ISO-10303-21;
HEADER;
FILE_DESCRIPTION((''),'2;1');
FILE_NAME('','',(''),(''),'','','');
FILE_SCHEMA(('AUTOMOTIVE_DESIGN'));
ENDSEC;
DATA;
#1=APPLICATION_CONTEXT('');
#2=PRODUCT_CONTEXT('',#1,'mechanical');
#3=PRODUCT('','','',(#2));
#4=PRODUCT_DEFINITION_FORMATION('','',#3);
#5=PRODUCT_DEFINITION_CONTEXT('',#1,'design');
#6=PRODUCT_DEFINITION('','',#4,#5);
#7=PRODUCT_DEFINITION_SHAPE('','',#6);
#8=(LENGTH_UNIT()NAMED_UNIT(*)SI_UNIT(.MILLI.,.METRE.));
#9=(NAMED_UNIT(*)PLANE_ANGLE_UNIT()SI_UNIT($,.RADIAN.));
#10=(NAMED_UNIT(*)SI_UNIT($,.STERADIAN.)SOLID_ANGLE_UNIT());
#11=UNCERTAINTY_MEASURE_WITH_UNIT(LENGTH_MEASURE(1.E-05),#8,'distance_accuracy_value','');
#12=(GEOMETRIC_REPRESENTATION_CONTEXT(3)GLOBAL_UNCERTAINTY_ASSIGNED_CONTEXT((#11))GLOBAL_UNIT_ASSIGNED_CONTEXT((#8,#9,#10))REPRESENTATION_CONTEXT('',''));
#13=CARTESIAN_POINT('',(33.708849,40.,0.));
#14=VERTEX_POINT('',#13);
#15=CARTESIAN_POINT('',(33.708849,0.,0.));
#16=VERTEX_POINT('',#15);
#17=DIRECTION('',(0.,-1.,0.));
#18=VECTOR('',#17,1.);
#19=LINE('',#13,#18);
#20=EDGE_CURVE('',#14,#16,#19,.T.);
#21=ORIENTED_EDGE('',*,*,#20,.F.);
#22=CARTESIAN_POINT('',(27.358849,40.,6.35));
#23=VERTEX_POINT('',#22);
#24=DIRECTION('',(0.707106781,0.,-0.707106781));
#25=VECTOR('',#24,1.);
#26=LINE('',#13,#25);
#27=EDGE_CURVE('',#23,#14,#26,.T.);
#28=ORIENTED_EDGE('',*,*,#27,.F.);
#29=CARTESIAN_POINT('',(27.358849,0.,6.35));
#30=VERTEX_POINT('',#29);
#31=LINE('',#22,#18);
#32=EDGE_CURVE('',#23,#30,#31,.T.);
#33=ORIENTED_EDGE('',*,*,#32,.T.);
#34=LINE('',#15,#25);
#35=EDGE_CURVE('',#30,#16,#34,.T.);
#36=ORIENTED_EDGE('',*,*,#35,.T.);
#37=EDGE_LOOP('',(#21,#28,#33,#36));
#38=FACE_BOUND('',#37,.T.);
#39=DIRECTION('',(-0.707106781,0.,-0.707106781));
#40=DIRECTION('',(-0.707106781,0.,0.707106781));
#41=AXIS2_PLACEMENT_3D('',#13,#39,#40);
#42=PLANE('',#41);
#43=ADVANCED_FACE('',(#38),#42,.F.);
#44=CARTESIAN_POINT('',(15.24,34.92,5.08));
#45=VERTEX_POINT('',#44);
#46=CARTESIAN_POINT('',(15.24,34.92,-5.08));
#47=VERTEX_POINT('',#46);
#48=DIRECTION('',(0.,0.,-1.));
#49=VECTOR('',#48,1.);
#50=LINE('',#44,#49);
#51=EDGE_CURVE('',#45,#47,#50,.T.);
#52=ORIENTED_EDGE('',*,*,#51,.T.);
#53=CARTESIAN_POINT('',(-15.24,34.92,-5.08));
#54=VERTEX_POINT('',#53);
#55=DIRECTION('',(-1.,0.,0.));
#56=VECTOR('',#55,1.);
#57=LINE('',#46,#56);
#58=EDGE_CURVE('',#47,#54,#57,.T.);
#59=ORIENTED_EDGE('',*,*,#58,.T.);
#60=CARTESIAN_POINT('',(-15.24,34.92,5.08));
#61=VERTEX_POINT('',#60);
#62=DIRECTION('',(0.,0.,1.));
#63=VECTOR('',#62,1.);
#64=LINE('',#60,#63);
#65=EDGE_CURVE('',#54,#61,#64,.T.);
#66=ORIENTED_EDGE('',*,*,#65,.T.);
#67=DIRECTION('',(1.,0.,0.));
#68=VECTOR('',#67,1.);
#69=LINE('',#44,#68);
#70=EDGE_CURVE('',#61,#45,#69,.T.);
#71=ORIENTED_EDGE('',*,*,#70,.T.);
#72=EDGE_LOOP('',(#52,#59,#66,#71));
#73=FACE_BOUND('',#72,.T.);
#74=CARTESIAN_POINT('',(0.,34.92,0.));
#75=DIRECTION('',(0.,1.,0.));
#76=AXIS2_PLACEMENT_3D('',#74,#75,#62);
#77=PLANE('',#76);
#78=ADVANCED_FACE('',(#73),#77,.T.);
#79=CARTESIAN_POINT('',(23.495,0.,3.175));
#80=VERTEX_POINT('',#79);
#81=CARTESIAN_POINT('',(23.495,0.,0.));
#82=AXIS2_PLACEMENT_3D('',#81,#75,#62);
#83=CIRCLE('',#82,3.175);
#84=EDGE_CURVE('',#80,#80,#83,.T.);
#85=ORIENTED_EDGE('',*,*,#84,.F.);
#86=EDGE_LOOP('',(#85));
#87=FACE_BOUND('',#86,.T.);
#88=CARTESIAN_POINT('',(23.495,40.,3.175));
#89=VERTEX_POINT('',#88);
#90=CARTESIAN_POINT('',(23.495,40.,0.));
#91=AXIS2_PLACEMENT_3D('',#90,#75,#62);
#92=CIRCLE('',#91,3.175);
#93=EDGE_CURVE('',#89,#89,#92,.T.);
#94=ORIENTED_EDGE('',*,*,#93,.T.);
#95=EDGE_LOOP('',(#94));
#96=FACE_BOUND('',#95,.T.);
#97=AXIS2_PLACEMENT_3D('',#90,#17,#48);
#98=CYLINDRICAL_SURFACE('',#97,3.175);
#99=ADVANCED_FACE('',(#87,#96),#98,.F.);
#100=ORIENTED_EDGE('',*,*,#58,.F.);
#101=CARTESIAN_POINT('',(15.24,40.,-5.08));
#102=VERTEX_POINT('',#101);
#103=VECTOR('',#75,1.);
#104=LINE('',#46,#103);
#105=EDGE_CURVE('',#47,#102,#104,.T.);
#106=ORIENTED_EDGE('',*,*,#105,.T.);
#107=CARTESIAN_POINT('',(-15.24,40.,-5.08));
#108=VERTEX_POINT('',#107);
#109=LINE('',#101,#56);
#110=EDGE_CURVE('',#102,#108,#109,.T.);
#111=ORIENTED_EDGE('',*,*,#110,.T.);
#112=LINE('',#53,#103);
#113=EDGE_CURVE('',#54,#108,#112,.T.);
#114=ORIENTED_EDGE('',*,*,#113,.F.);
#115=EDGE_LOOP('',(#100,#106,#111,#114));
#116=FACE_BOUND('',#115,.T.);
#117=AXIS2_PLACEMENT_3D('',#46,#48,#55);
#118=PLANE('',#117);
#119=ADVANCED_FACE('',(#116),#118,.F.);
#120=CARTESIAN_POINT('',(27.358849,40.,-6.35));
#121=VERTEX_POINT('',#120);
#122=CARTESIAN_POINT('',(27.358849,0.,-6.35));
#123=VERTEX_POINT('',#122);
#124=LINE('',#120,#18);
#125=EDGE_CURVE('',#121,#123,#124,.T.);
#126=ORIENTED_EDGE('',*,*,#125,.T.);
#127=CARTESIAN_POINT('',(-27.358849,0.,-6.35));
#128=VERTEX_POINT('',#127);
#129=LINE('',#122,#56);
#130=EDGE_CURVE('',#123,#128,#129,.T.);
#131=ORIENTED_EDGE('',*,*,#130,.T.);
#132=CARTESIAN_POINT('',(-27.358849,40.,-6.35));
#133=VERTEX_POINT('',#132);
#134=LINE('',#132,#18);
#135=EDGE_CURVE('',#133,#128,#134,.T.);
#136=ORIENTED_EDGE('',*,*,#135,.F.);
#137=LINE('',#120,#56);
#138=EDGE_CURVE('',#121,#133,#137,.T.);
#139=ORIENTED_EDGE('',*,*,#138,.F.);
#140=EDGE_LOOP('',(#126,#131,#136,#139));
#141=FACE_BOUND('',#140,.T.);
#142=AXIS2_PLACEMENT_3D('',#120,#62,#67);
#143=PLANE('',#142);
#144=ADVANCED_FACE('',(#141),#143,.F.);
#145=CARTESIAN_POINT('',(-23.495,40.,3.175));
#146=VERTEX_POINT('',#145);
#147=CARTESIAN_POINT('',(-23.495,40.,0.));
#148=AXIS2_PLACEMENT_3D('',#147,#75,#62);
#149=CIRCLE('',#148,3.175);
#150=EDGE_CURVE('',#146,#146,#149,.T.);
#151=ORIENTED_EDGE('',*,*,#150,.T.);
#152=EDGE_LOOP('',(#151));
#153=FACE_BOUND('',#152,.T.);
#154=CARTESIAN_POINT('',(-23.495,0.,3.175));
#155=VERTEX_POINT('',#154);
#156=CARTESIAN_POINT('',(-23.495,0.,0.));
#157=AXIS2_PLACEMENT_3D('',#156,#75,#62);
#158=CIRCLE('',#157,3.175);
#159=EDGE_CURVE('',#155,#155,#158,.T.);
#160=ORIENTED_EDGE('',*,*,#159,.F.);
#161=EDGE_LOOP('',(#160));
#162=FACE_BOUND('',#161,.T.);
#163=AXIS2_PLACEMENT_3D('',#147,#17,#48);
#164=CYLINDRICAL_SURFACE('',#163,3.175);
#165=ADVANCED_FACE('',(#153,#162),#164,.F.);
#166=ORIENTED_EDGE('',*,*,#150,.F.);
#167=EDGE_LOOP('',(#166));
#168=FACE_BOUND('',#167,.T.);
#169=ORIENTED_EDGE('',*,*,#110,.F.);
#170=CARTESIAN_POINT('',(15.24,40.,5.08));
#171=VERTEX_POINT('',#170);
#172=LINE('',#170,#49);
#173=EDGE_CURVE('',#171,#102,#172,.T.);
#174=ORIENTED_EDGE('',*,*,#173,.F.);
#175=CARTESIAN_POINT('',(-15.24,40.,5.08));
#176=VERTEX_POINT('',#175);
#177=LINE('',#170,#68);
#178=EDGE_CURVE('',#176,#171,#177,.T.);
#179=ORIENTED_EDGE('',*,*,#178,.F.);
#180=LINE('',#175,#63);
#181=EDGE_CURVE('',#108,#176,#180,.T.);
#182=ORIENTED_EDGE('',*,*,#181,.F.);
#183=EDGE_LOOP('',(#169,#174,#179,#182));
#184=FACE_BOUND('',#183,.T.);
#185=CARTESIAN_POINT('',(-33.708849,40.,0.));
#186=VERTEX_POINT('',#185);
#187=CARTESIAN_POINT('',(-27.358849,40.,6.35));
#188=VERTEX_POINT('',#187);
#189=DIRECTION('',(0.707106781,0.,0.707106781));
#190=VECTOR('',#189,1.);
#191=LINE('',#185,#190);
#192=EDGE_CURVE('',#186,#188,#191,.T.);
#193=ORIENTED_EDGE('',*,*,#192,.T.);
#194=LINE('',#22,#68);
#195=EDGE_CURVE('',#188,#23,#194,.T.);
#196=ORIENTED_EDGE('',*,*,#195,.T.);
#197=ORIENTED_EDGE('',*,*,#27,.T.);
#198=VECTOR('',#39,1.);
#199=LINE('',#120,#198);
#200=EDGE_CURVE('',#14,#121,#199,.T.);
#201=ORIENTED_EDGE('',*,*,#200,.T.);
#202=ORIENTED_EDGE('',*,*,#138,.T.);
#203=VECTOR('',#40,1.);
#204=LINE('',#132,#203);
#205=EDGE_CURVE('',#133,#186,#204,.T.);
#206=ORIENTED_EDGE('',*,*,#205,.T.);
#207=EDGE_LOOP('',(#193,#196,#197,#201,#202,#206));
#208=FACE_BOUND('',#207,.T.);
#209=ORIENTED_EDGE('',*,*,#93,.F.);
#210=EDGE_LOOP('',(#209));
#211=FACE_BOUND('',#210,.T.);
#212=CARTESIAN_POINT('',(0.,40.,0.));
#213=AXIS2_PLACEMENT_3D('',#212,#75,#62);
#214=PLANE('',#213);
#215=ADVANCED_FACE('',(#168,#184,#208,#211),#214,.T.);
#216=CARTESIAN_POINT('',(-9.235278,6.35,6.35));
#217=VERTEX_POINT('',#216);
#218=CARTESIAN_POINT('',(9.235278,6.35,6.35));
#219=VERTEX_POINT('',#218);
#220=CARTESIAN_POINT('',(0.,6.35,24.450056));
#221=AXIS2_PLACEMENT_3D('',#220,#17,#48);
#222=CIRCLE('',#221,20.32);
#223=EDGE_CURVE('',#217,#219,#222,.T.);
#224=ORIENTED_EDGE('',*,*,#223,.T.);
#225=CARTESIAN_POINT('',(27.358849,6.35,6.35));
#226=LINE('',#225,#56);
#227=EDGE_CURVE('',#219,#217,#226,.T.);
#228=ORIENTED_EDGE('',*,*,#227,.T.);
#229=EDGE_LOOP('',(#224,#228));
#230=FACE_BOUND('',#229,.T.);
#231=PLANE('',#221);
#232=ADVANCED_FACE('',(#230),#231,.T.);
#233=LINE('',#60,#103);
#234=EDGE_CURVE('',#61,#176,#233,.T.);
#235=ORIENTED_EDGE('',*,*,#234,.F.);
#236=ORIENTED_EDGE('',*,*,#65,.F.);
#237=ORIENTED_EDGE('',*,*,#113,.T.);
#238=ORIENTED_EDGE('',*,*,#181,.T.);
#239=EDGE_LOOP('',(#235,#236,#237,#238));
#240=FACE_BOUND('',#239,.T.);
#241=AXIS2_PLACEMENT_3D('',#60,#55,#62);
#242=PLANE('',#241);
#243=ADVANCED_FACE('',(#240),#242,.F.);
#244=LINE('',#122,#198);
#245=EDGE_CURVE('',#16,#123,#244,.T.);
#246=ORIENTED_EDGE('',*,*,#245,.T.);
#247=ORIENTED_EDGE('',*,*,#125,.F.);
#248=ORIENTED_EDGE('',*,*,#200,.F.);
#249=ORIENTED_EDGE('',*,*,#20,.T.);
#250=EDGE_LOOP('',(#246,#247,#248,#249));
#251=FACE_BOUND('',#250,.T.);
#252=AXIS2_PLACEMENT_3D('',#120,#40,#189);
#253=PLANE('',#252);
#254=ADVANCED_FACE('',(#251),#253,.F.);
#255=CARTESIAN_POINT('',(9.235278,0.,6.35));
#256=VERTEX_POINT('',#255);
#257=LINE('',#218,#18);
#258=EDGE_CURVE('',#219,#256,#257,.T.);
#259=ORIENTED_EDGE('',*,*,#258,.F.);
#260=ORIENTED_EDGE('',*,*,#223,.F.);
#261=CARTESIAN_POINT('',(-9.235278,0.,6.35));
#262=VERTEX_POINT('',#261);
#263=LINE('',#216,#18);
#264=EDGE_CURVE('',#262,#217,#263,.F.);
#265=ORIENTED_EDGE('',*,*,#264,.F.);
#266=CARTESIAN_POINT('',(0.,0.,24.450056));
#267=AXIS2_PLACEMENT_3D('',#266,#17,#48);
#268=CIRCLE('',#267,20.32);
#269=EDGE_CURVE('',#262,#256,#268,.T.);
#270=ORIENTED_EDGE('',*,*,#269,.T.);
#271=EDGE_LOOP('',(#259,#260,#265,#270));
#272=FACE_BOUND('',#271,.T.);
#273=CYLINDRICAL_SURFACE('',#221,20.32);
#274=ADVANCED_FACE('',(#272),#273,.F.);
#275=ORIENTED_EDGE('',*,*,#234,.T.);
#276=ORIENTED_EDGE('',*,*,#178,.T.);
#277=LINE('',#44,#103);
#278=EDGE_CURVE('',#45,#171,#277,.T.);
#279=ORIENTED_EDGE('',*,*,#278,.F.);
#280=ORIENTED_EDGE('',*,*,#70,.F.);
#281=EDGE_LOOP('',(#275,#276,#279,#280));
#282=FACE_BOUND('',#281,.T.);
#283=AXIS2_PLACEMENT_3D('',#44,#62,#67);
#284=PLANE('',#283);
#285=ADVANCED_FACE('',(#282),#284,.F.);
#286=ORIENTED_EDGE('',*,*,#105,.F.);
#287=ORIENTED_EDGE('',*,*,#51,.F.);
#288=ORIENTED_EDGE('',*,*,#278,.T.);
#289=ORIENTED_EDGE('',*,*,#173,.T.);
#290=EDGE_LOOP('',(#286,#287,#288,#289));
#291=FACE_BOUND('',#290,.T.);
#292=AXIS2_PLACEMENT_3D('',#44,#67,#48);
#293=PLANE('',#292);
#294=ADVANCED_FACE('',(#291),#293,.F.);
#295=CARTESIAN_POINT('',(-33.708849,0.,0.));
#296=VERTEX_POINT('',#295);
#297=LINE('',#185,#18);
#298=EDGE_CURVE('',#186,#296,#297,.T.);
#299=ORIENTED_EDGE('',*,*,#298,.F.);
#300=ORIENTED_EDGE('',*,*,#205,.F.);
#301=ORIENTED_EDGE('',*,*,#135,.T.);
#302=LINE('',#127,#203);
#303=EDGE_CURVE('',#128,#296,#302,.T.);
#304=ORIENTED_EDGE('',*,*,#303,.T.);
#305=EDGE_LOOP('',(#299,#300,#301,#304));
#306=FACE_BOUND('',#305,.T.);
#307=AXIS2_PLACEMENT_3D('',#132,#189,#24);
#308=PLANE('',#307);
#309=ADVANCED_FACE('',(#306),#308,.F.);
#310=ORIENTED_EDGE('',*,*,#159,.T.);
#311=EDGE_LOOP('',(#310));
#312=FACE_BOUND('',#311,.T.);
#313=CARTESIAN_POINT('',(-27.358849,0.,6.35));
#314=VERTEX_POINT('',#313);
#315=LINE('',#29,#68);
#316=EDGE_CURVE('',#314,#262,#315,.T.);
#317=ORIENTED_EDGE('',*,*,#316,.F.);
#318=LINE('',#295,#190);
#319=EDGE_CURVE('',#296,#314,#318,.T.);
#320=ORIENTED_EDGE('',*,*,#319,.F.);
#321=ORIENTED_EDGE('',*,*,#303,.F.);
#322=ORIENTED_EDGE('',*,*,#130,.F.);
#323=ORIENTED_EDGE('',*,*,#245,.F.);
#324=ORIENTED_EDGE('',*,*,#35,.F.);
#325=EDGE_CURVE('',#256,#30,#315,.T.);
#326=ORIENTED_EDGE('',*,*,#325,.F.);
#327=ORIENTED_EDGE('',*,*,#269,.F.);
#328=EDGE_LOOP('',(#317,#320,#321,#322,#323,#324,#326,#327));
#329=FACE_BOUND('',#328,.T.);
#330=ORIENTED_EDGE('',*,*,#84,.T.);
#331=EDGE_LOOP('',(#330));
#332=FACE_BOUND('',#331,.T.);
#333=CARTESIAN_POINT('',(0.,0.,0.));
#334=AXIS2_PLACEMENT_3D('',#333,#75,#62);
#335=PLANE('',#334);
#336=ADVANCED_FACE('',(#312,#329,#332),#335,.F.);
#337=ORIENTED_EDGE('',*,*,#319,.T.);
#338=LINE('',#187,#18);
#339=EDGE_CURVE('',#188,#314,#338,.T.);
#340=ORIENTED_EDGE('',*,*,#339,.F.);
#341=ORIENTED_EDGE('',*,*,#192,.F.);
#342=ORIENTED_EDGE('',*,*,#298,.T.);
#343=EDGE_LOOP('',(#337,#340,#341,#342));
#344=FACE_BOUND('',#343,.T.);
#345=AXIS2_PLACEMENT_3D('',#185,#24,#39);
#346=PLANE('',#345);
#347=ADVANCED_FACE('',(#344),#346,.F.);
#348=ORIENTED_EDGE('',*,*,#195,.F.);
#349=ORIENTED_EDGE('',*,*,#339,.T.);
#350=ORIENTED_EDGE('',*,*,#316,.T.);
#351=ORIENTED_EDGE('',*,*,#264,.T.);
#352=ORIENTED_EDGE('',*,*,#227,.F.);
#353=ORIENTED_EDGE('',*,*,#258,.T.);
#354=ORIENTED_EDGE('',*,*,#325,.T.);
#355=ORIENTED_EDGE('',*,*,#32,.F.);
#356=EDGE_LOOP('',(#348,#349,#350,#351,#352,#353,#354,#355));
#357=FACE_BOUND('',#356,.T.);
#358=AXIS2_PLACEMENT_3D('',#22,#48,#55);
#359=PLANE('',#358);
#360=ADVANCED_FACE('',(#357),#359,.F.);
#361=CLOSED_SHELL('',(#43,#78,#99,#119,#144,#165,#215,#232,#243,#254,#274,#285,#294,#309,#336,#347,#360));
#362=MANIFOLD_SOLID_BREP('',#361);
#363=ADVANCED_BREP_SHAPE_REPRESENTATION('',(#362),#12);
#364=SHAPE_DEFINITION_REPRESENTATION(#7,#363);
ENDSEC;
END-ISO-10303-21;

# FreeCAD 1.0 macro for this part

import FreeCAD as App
import Part
import Sketcher
Q = App.Units.Quantity

doc = App.newDocument("Part")
body = doc.addObject("PartDesign::Body", "Body")

sketch1 = doc.addObject("Sketcher::SketchObject", "Sketch")
body.addObject(sketch1)
sketch1.AttachmentSupport = (doc.XZ_Plane, [""])
sketch1.MapMode = "FlatFace"
sketch1.addGeometry(Part.LineSegment(App.Vector(-27.4, -6.3, 0), App.Vector(-33.7, 0, 0)), False)
sketch1.addGeometry(Part.LineSegment(App.Vector(-33.7, 0, 0), App.Vector(-27.4, 6.3, 0)), False)
sketch1.addGeometry(Part.LineSegment(App.Vector(-27.4, 6.3, 0), App.Vector(27.4, 6.3, 0)), False)
sketch1.addGeometry(Part.LineSegment(App.Vector(27.4, 6.3, 0), App.Vector(33.7, 0, 0)), False)
sketch1.addGeometry(Part.LineSegment(App.Vector(33.7, 0, 0), App.Vector(27.4, -6.3, 0)), False)
sketch1.addGeometry(Part.LineSegment(App.Vector(27.4, -6.3, 0), App.Vector(-27.4, -6.3, 0)), False)
sketch1.addGeometry(Part.Circle(App.Vector(-23.5, 0, 0), App.Vector(0, 0, 1), 3.2), False)
sketch1.addGeometry(Part.Circle(App.Vector(23.5, 0, 0), App.Vector(0, 0, 1), 3.2), False)
sketch1.addConstraint(Sketcher.Constraint("Coincident", 0, 2, 1, 1))
sketch1.addConstraint(Sketcher.Constraint("Coincident", 1, 2, 2, 1))
sketch1.addConstraint(Sketcher.Constraint("Coincident", 2, 2, 3, 1))
sketch1.addConstraint(Sketcher.Constraint("Coincident", 3, 2, 4, 1))
sketch1.addConstraint(Sketcher.Constraint("Coincident", 4, 2, 5, 1))
sketch1.addConstraint(Sketcher.Constraint("Coincident", 5, 2, 0, 1))
sketch1.addConstraint(Sketcher.Constraint("Horizontal", 2))
sketch1.addConstraint(Sketcher.Constraint("Horizontal", 5))
sketch1.addConstraint(Sketcher.Constraint("Equal", 6, 7))
sketch1.addConstraint(Sketcher.Constraint("Symmetric", 6, 3, 7, 3, -1, 1))
sketch1.addConstraint(Sketcher.Constraint("Symmetric", 0, 2, 3, 2, -1, 1))
sketch1.addConstraint(Sketcher.Constraint("Symmetric", 1, 2, 4, 2, -1, 1))
sketch1.addConstraint(Sketcher.Constraint("PointOnObject", 6, 3, -1))
sketch1.addConstraint(Sketcher.Constraint("PointOnObject", 0, 2, -1))
sketch1.addConstraint(Sketcher.Constraint("Perpendicular", 0, 1))
sketch1.addConstraint(Sketcher.Constraint("Perpendicular", 1, 3))
sketch1.addConstraint(Sketcher.Constraint("Vertical", 2, 2, 4, 2))
sketch1.addConstraint(Sketcher.Constraint("Diameter", 6, Q("0.25 in")))
sketch1.addConstraint(Sketcher.Constraint("DistanceY", 4, 2, 2, 2, Q("0.5 in")))
sketch1.addConstraint(Sketcher.Constraint("DistanceX", 6, 3, 7, 3, Q("1.85 in")))
sketch1.addConstraint(Sketcher.Constraint("DistanceX", 2, 1, 2, 2, 54.717698))
pad1 = doc.addObject("PartDesign::Pad", "Pad")
body.addObject(pad1)
pad1.Profile = sketch1
pad1.Length = 40
pad1.Reversed = True

sketch2 = doc.addObject("Sketcher::SketchObject", "Sketch001")
body.addObject(sketch2)
sketch2.AttachmentSupport = (doc.XZ_Plane, [""])
sketch2.MapMode = "FlatFace"
sketch2.AttachmentOffset = App.Placement(App.Vector(0, 0, -40), App.Rotation())
sketch2.addGeometry(Part.LineSegment(App.Vector(-15, -5, 0), App.Vector(-15, 5, 0)), False)
sketch2.addGeometry(Part.LineSegment(App.Vector(-15, 5, 0), App.Vector(15, 5, 0)), False)
sketch2.addGeometry(Part.LineSegment(App.Vector(15, 5, 0), App.Vector(15, -5, 0)), False)
sketch2.addGeometry(Part.LineSegment(App.Vector(15, -5, 0), App.Vector(-15, -5, 0)), False)
sketch2.addConstraint(Sketcher.Constraint("Coincident", 0, 2, 1, 1))
sketch2.addConstraint(Sketcher.Constraint("Coincident", 1, 2, 2, 1))
sketch2.addConstraint(Sketcher.Constraint("Coincident", 2, 2, 3, 1))
sketch2.addConstraint(Sketcher.Constraint("Coincident", 3, 2, 0, 1))
sketch2.addConstraint(Sketcher.Constraint("Vertical", 0))
sketch2.addConstraint(Sketcher.Constraint("Horizontal", 1))
sketch2.addConstraint(Sketcher.Constraint("Vertical", 2))
sketch2.addConstraint(Sketcher.Constraint("Horizontal", 3))
sketch2.addConstraint(Sketcher.Constraint("Symmetric", 0, 2, 2, 2, -1, 1))
sketch2.addConstraint(Sketcher.Constraint("DistanceX", 1, 1, 1, 2, Q("1.2 in")))
sketch2.addConstraint(Sketcher.Constraint("DistanceY", 0, 1, 0, 2, Q("0.4 in")))
pocket1 = doc.addObject("PartDesign::Pocket", "Pocket")
body.addObject(pocket1)
pocket1.Profile = sketch2
pocket1.Length = Q("0.2 in")
pocket1.Reversed = True

sketch3 = doc.addObject("Sketcher::SketchObject", "Sketch002")
body.addObject(sketch3)
sketch3.AttachmentSupport = (doc.XZ_Plane, [""])
sketch3.MapMode = "FlatFace"
sketch3.addGeometry(Part.Circle(App.Vector(0, 24, 0), App.Vector(0, 0, 1), 20), False)
sketch3.addConstraint(Sketcher.Constraint("PointOnObject", 0, 3, -2))
sketch3.addConstraint(Sketcher.Constraint("Diameter", 0, Q("1.6 in")))
sketch3.addConstraint(Sketcher.Constraint("DistanceY", -1, 1, 0, 3, 24.450056))
pocket2 = doc.addObject("PartDesign::Pocket", "Pocket001")
body.addObject(pocket2)
pocket2.Profile = sketch3
pocket2.Length = Q("0.25 in")

doc.recompute()
